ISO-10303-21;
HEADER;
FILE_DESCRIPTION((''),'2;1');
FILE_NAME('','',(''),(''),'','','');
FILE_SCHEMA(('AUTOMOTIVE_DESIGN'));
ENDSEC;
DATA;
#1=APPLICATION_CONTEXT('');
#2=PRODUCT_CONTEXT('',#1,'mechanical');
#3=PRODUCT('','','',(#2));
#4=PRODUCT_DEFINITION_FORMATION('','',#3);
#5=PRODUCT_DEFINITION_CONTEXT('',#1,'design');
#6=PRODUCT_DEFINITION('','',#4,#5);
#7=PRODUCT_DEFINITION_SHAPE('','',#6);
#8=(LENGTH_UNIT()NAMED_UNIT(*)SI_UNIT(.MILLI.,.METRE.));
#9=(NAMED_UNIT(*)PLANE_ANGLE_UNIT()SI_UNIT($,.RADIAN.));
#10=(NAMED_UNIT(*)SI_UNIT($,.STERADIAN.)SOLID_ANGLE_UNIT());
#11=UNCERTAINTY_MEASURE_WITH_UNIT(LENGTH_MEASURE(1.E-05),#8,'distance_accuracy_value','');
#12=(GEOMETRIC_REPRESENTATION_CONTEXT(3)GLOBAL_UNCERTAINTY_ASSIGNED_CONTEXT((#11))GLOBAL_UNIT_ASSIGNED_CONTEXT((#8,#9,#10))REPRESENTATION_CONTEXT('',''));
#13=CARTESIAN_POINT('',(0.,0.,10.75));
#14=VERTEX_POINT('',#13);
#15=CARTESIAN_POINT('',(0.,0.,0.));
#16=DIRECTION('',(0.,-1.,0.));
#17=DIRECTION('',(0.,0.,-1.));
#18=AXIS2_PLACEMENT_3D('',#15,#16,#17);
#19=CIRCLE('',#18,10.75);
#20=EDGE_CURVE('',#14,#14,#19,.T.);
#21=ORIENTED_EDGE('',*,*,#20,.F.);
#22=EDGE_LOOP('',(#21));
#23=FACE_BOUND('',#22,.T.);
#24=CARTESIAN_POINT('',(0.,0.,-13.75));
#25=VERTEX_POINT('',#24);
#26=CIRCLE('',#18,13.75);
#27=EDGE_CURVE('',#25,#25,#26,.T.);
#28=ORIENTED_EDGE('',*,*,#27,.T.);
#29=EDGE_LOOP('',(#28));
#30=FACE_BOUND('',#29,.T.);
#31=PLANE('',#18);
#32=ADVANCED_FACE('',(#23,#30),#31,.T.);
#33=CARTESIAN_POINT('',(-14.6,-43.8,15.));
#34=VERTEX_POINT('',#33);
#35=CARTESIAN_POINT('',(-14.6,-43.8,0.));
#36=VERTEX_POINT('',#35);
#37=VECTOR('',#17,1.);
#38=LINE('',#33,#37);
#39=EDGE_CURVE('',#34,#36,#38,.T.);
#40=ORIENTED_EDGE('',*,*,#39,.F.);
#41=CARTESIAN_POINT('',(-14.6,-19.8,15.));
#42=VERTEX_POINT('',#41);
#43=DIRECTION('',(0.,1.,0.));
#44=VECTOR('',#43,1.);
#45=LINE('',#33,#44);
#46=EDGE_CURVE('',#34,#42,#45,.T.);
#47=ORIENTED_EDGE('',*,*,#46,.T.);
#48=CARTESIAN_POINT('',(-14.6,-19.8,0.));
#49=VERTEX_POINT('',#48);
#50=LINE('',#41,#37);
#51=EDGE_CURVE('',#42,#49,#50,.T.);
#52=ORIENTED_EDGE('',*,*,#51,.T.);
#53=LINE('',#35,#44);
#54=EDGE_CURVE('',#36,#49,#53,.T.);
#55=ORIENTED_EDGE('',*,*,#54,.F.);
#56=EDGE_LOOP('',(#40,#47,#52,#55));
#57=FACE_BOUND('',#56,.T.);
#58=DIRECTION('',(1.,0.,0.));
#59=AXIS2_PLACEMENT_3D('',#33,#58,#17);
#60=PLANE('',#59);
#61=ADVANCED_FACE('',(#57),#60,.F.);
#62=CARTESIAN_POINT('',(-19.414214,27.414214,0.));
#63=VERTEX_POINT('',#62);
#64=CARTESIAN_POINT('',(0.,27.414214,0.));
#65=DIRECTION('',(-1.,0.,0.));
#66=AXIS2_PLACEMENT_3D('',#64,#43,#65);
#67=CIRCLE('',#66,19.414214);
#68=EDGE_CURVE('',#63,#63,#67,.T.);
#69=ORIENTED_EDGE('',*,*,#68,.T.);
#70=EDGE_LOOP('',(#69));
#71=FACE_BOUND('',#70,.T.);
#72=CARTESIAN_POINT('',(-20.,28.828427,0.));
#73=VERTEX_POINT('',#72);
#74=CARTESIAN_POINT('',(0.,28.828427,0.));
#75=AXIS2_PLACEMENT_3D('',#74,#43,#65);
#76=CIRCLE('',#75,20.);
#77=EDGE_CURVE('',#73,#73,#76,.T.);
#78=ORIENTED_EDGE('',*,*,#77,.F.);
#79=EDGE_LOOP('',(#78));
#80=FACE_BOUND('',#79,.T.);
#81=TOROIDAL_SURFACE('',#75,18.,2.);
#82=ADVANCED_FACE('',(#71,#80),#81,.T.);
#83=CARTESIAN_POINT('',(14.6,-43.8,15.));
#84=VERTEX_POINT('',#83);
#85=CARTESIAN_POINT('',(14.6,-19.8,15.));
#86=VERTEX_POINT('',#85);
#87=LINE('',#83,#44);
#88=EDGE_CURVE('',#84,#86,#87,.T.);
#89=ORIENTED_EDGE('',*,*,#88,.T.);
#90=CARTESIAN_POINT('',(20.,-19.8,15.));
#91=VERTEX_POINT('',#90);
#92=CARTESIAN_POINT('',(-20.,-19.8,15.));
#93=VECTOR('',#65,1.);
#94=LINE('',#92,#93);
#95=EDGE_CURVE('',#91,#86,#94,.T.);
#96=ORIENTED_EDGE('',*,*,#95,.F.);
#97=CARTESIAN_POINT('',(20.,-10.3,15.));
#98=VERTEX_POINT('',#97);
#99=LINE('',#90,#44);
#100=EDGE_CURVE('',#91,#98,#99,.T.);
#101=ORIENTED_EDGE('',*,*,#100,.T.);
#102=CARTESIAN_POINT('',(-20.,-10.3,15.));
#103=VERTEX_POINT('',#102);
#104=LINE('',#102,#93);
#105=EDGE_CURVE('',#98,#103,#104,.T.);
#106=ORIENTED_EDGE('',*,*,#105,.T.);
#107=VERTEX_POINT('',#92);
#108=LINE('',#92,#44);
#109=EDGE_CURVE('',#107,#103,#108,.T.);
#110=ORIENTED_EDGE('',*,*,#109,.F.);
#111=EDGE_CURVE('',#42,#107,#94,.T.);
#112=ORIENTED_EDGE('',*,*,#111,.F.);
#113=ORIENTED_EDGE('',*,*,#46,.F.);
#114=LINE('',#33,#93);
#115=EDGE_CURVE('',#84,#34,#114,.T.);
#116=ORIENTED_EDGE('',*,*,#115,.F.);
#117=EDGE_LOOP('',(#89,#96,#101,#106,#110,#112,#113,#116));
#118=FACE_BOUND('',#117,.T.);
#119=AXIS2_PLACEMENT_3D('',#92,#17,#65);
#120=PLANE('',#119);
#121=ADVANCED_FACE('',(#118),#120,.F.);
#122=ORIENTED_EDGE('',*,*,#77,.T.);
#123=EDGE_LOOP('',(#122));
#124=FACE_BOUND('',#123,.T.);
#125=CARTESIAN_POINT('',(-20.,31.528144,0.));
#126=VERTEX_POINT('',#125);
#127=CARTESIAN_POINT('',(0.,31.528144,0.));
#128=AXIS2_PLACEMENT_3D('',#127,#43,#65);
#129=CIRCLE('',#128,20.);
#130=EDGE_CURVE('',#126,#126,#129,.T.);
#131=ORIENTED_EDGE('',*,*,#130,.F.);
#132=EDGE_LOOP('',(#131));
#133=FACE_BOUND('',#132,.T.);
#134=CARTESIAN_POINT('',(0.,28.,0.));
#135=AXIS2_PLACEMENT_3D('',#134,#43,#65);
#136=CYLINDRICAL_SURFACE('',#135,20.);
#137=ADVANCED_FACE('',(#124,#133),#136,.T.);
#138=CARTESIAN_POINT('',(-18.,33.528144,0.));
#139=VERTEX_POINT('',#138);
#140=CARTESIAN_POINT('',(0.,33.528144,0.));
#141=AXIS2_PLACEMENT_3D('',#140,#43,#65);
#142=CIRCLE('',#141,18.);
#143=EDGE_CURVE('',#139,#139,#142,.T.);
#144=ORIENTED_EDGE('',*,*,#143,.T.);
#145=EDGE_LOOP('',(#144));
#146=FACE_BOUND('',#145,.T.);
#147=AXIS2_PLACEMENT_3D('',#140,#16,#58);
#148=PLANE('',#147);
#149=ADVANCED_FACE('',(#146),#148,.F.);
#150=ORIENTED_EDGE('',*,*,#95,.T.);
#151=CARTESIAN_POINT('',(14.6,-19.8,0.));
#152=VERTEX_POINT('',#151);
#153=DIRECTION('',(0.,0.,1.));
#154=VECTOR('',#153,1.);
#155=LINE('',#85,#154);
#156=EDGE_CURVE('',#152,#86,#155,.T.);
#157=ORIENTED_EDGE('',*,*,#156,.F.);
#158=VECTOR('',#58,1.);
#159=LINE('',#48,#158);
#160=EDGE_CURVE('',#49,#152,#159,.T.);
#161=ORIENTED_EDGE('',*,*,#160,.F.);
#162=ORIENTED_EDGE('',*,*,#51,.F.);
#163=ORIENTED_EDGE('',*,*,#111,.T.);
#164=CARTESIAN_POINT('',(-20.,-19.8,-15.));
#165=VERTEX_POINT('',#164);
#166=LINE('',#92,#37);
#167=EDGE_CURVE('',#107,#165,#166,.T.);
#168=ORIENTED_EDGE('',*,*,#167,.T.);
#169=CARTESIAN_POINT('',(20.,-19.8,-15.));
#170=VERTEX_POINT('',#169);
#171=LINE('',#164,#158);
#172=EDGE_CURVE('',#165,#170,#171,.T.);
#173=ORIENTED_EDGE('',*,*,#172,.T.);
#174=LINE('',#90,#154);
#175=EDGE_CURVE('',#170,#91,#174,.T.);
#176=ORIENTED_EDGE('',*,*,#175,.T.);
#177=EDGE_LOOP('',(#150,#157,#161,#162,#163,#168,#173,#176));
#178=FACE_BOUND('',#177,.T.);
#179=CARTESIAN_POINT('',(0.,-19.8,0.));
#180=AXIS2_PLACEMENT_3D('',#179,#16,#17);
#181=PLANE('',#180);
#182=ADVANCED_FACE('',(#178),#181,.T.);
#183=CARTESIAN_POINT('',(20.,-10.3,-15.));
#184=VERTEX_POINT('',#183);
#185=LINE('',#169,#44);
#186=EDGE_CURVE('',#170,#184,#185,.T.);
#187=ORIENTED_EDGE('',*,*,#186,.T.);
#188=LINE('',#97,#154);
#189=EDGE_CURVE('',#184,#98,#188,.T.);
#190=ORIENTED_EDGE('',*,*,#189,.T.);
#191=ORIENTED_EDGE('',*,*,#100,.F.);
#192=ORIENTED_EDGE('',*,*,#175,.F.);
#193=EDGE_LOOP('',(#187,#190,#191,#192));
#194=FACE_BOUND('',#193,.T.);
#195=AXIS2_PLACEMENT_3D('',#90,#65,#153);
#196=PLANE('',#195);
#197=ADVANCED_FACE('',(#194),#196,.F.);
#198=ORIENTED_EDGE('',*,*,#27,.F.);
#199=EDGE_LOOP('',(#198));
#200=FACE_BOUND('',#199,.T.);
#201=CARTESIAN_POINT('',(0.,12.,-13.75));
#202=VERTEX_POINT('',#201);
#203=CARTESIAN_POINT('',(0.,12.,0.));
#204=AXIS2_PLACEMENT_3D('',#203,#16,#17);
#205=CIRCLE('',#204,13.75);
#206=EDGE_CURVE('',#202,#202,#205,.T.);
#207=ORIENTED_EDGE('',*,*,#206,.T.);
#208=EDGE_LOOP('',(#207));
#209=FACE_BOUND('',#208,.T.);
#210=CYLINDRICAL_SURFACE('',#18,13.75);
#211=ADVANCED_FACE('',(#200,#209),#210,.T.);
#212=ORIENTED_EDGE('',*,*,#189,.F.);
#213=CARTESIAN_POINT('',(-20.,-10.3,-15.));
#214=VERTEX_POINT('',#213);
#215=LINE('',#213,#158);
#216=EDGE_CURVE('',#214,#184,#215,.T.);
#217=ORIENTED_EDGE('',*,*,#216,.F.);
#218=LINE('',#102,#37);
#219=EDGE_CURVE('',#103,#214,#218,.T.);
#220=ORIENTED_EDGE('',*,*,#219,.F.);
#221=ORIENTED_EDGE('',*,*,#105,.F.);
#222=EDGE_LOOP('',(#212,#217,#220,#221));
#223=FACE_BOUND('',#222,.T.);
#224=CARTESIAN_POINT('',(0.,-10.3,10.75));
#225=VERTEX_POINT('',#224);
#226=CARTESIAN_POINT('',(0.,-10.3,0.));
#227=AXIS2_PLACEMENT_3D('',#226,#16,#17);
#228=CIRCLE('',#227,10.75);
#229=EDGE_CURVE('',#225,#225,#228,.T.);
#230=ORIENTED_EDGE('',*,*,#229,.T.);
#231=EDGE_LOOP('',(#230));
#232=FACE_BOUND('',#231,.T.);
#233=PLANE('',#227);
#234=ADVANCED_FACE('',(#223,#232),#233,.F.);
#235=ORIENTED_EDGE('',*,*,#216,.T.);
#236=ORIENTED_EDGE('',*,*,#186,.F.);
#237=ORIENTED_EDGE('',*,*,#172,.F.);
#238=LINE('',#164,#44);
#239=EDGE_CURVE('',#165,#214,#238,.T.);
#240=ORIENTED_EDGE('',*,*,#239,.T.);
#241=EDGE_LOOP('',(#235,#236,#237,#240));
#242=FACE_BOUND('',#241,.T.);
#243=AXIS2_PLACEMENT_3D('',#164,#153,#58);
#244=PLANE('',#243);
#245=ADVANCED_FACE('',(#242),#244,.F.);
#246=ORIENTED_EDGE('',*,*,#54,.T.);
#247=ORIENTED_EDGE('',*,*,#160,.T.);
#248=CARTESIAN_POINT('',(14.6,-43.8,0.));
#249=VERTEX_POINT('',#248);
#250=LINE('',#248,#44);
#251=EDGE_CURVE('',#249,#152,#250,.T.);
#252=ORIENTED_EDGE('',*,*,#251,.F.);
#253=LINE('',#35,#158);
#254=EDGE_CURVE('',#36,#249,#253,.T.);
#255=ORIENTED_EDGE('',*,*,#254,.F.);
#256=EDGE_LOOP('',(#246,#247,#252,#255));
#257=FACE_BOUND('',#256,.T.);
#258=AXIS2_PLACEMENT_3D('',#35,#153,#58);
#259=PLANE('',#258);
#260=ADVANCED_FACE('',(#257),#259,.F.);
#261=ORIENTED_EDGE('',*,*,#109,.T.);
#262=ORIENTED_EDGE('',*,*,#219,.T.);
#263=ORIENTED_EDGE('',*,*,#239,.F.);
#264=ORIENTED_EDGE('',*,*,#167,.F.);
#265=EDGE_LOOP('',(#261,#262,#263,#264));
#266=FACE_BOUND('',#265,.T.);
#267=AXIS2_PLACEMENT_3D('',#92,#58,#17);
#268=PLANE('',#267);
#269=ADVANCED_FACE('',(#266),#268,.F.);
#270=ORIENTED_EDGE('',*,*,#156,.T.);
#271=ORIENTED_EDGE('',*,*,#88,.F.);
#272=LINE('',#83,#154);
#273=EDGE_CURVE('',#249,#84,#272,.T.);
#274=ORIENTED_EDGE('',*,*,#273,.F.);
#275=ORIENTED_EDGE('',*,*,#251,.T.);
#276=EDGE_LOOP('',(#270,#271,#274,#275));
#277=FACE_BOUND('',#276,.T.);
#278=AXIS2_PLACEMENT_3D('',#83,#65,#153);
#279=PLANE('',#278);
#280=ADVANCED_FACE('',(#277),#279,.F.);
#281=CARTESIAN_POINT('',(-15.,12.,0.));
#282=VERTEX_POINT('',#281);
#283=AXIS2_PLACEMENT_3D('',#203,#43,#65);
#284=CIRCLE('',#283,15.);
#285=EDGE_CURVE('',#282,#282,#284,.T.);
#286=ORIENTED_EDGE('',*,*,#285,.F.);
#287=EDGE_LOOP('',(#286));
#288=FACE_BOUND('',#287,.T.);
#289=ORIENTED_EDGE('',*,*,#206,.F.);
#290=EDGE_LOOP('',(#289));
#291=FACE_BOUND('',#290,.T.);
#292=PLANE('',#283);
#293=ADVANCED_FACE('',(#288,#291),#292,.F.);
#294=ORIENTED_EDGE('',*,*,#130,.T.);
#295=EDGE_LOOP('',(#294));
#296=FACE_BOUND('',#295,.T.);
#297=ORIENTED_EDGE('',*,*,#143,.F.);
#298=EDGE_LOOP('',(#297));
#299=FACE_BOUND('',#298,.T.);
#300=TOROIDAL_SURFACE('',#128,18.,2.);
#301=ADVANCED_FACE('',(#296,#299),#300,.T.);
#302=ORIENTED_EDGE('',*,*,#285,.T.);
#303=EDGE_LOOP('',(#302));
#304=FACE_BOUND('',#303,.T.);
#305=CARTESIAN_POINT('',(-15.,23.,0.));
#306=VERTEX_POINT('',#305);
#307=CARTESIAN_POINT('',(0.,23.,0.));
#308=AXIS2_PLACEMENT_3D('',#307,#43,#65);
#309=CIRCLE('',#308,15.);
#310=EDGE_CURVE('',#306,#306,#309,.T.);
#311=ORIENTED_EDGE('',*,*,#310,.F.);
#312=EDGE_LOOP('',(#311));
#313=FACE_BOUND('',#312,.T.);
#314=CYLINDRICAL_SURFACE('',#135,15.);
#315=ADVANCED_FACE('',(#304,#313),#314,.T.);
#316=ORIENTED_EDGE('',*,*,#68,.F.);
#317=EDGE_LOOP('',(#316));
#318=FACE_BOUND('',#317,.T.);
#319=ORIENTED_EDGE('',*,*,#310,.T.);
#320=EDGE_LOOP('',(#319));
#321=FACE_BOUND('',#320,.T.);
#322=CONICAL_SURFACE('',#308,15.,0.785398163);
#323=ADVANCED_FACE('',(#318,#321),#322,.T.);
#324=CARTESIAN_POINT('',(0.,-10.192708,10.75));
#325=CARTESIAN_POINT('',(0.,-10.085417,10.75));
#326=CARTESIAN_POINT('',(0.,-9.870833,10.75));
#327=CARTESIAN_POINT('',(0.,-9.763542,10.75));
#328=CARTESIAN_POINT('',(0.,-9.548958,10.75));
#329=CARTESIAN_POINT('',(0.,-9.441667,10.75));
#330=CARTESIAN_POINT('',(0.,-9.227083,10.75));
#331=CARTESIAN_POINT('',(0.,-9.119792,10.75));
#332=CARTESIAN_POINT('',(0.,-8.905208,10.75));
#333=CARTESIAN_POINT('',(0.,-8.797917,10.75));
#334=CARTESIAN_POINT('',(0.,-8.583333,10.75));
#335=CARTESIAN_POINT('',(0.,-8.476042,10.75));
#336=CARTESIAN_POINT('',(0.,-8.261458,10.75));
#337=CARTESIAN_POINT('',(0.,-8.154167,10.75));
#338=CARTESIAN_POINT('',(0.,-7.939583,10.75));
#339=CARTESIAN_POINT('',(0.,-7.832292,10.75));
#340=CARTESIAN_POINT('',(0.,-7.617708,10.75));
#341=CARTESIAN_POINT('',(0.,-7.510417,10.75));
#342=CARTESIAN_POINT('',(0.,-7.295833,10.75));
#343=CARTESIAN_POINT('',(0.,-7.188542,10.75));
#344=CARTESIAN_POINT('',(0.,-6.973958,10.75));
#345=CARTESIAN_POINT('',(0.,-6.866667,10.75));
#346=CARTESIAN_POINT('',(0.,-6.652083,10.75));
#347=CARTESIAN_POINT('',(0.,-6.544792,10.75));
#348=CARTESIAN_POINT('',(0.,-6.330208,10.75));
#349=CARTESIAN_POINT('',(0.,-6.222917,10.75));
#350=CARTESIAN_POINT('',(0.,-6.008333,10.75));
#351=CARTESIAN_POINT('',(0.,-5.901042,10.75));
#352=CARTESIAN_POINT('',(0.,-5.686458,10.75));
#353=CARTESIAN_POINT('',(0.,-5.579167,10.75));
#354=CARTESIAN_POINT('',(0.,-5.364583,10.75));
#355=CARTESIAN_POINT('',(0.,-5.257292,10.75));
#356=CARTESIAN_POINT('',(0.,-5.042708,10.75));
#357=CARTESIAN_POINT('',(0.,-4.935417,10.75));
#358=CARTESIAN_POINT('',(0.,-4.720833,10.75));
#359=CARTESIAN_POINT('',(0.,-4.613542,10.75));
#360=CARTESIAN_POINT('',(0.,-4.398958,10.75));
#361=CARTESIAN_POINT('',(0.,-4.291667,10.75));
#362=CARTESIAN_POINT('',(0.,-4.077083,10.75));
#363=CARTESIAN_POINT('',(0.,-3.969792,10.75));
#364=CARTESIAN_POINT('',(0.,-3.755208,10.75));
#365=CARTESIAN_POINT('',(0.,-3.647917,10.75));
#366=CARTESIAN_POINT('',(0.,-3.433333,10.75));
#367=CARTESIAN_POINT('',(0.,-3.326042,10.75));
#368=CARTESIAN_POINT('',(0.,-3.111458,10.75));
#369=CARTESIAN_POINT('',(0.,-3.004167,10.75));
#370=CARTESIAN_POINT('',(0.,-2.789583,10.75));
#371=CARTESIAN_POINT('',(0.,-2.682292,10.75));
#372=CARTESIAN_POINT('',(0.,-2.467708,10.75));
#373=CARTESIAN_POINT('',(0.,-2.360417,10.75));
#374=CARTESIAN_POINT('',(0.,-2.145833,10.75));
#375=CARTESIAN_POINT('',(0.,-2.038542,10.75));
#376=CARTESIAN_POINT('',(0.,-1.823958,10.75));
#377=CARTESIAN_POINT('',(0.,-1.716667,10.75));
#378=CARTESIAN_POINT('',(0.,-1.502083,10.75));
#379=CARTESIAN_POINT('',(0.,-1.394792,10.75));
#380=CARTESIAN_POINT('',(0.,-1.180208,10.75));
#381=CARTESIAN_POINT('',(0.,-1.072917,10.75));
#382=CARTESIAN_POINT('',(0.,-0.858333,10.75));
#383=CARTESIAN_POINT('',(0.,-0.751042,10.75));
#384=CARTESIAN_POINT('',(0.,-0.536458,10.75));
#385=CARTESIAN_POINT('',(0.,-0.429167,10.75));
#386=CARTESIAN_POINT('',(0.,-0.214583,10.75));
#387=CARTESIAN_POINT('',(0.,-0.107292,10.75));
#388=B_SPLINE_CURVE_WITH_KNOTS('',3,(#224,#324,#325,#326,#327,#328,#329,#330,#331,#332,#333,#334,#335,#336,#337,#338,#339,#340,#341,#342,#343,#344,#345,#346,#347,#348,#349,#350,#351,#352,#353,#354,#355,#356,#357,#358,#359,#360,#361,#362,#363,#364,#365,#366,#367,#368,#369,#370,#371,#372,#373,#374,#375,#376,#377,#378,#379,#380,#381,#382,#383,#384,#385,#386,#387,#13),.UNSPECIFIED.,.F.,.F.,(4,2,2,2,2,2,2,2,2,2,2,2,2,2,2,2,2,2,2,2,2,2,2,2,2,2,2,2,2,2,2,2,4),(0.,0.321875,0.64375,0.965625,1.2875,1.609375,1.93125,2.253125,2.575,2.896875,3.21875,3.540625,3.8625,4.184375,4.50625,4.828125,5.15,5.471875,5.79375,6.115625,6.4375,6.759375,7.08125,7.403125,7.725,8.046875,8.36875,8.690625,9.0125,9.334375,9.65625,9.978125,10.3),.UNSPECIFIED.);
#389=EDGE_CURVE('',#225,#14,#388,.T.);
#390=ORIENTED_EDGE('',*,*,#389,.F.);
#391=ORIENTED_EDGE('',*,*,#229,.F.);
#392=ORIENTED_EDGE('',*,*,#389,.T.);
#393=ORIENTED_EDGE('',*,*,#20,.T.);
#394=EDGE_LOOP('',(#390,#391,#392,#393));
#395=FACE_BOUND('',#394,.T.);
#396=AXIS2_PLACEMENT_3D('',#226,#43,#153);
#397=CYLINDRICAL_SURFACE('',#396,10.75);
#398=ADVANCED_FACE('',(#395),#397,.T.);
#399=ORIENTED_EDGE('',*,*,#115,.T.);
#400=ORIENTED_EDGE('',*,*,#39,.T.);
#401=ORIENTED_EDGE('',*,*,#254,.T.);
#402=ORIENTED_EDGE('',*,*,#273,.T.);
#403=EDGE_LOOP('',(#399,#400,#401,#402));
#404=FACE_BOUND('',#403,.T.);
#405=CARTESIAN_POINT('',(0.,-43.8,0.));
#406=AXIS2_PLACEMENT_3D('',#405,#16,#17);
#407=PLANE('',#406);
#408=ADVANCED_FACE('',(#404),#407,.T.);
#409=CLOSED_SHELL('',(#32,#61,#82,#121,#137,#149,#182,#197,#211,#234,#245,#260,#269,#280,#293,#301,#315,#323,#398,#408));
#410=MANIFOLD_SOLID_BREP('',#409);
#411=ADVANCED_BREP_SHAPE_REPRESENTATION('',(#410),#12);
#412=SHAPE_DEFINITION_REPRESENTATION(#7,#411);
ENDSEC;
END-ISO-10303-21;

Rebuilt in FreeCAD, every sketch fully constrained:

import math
import FreeCAD as App
import Part
import Sketcher
Q = App.Units.Quantity


def add_polygon(sketch, points):
    """Adds a closed chain of lines whose ends are joined by coincident constraints."""
    first, n = sketch.GeometryCount, len(points)
    for a, b in zip(points, points[1:] + points[:1]):
        sketch.addGeometry(Part.LineSegment(App.Vector(*a, 0), App.Vector(*b, 0)), False)
    for i in range(n):
        sketch.addConstraint(Sketcher.Constraint("Coincident", first + i, 2, first + (i + 1) % n, 1))

doc = App.newDocument("Part")
body = doc.addObject("PartDesign::Body", "Body")

sketch1 = doc.addObject("Sketcher::SketchObject", "Sketch")
body.addObject(sketch1)
sketch1.AttachmentSupport = (doc.XY_Plane, [""])
sketch1.MapMode = "FlatFace"
add_polygon(sketch1, [(0, 12), (0, 0), (14, 0), (14, 12)])
sketch1.addConstraint([
    Sketcher.Constraint("Vertical", 0),
    Sketcher.Constraint("Horizontal", 1),
    Sketcher.Constraint("Vertical", 2),
    Sketcher.Constraint("Horizontal", 3),
    Sketcher.Constraint("Coincident", 0, 2, -1, 1),
    Sketcher.Constraint("DistanceY", 0, 2, 0, 1, Q("12 mm")),
    Sketcher.Constraint("DistanceX", 1, 1, 1, 2, Q("13.75 mm")),
])
revolution = doc.addObject("PartDesign::Revolution", "Revolution")
body.addObject(revolution)
revolution.Profile = sketch1
revolution.ReferenceAxis = (sketch1, ["V_Axis"])
revolution.Angle = 360

sketch2 = doc.addObject("Sketcher::SketchObject", "Sketch001")
body.addObject(sketch2)
sketch2.AttachmentSupport = (doc.XY_Plane, [""])
sketch2.MapMode = "FlatFace"
sketch2.addGeometry([
    Part.LineSegment(App.Vector(0, 12, 0), App.Vector(15, 12, 0)),
    Part.LineSegment(App.Vector(15, 12, 0), App.Vector(15, 23, 0)),
    Part.LineSegment(App.Vector(15, 23, 0), App.Vector(19.4, 27.4, 0)),
    Part.ArcOfCircle(Part.Circle(App.Vector(18, 28.8, 0), App.Vector(0, 0, 1), 2), math.radians(-45), math.radians(0)),
    Part.LineSegment(App.Vector(20, 28.8, 0), App.Vector(20, 31.5, 0)),
    Part.ArcOfCircle(Part.Circle(App.Vector(18, 31.5, 0), App.Vector(0, 0, 1), 2), math.radians(0), math.radians(90)),
    Part.LineSegment(App.Vector(18, 33.5, 0), App.Vector(0, 33.5, 0)),
    Part.LineSegment(App.Vector(0, 33.5, 0), App.Vector(0, 12, 0)),
], False)
sketch2.addConstraint([
    Sketcher.Constraint("Coincident", 0, 2, 1, 1),
    Sketcher.Constraint("Coincident", 1, 2, 2, 1),
    Sketcher.Constraint("Tangent", 2, 2, 3, 1),
    Sketcher.Constraint("Tangent", 3, 2, 4, 1),
    Sketcher.Constraint("Tangent", 4, 2, 5, 1),
    Sketcher.Constraint("Tangent", 5, 2, 6, 1),
    Sketcher.Constraint("Coincident", 6, 2, 7, 1),
    Sketcher.Constraint("Coincident", 7, 2, 0, 1),
    Sketcher.Constraint("Horizontal", 0),
    Sketcher.Constraint("Vertical", 1),
    Sketcher.Constraint("Vertical", 4),
    Sketcher.Constraint("Horizontal", 6),
    Sketcher.Constraint("Vertical", 7),
    Sketcher.Constraint("Equal", 3, 5),
    Sketcher.Constraint("PointOnObject", 6, 2, -2),
    Sketcher.Constraint("Radius", 3, Q("2 mm")),
    Sketcher.Constraint("DistanceX", 0, 1, 0, 2, Q("15 mm")),
    Sketcher.Constraint("DistanceX", 6, 2, 6, 1, Q("18 mm")),
    Sketcher.Constraint("DistanceY", 1, 1, 1, 2, Q("11 mm")),
    Sketcher.Constraint("Angle", 2, Q("45 deg")),
    Sketcher.Constraint("DistanceY", -1, 1, 0, 2, Q("12 mm")),
    Sketcher.Constraint("DistanceY", 4, 1, 4, 2, Q("2.699716 mm")),
])
revolution2 = doc.addObject("PartDesign::Revolution", "Revolution001")
body.addObject(revolution2)
revolution2.Profile = sketch2
revolution2.ReferenceAxis = (sketch2, ["V_Axis"])
revolution2.Angle = 360

sketch3 = doc.addObject("Sketcher::SketchObject", "Sketch002")
body.addObject(sketch3)
sketch3.AttachmentSupport = (doc.XZ_Plane, [""])
sketch3.MapMode = "FlatFace"
sketch3.addGeometry(Part.Circle(App.Vector(0, 0, 0), App.Vector(0, 0, 1), 11), False)
sketch3.addConstraint([
    Sketcher.Constraint("Coincident", 0, 3, -1, 1),
    Sketcher.Constraint("Diameter", 0, Q("21.5 mm")),
])
pad1 = doc.addObject("PartDesign::Pad", "Pad")
body.addObject(pad1)
pad1.Profile = sketch3
pad1.Length = 10.3

sketch4 = doc.addObject("Sketcher::SketchObject", "Sketch003")
body.addObject(sketch4)
sketch4.AttachmentSupport = (doc.XZ_Plane, [""])
sketch4.MapMode = "FlatFace"
sketch4.AttachmentOffset = App.Placement(App.Vector(0, 0, 10.3), App.Rotation())
add_polygon(sketch4, [(-20, 15), (-20, -15), (20, -15), (20, 15)])
sketch4.addConstraint([
    Sketcher.Constraint("Vertical", 0),
    Sketcher.Constraint("Horizontal", 1),
    Sketcher.Constraint("Vertical", 2),
    Sketcher.Constraint("Horizontal", 3),
    Sketcher.Constraint("Symmetric", 0, 2, 2, 2, -1, 1),
    Sketcher.Constraint("DistanceX", 1, 1, 1, 2, Q("40 mm")),
    Sketcher.Constraint("DistanceY", 0, 2, 0, 1, Q("30 mm")),
])
pad2 = doc.addObject("PartDesign::Pad", "Pad001")
body.addObject(pad2)
pad2.Profile = sketch4
pad2.Length = 9.5

sketch5 = doc.addObject("Sketcher::SketchObject", "Sketch004")
body.addObject(sketch5)
sketch5.AttachmentSupport = (doc.XZ_Plane, [""])
sketch5.MapMode = "FlatFace"
sketch5.AttachmentOffset = App.Placement(App.Vector(0, 0, 19.8), App.Rotation())
add_polygon(sketch5, [(-15, 15), (-15, 0), (15, 0), (15, 15)])
sketch5.addConstraint([
    Sketcher.Constraint("Vertical", 0),
    Sketcher.Constraint("Horizontal", 1),
    Sketcher.Constraint("Vertical", 2),
    Sketcher.Constraint("Horizontal", 3),
    Sketcher.Constraint("Symmetric", 0, 2, 1, 2, -1, 1),
    Sketcher.Constraint("DistanceY", 0, 2, 0, 1, Q("15 mm")),
    Sketcher.Constraint("DistanceX", 1, 1, 1, 2, Q("29.2 mm")),
])
pad3 = doc.addObject("PartDesign::Pad", "Pad002")
body.addObject(pad3)
pad3.Profile = sketch5
pad3.Length = 24

doc.recompute()
